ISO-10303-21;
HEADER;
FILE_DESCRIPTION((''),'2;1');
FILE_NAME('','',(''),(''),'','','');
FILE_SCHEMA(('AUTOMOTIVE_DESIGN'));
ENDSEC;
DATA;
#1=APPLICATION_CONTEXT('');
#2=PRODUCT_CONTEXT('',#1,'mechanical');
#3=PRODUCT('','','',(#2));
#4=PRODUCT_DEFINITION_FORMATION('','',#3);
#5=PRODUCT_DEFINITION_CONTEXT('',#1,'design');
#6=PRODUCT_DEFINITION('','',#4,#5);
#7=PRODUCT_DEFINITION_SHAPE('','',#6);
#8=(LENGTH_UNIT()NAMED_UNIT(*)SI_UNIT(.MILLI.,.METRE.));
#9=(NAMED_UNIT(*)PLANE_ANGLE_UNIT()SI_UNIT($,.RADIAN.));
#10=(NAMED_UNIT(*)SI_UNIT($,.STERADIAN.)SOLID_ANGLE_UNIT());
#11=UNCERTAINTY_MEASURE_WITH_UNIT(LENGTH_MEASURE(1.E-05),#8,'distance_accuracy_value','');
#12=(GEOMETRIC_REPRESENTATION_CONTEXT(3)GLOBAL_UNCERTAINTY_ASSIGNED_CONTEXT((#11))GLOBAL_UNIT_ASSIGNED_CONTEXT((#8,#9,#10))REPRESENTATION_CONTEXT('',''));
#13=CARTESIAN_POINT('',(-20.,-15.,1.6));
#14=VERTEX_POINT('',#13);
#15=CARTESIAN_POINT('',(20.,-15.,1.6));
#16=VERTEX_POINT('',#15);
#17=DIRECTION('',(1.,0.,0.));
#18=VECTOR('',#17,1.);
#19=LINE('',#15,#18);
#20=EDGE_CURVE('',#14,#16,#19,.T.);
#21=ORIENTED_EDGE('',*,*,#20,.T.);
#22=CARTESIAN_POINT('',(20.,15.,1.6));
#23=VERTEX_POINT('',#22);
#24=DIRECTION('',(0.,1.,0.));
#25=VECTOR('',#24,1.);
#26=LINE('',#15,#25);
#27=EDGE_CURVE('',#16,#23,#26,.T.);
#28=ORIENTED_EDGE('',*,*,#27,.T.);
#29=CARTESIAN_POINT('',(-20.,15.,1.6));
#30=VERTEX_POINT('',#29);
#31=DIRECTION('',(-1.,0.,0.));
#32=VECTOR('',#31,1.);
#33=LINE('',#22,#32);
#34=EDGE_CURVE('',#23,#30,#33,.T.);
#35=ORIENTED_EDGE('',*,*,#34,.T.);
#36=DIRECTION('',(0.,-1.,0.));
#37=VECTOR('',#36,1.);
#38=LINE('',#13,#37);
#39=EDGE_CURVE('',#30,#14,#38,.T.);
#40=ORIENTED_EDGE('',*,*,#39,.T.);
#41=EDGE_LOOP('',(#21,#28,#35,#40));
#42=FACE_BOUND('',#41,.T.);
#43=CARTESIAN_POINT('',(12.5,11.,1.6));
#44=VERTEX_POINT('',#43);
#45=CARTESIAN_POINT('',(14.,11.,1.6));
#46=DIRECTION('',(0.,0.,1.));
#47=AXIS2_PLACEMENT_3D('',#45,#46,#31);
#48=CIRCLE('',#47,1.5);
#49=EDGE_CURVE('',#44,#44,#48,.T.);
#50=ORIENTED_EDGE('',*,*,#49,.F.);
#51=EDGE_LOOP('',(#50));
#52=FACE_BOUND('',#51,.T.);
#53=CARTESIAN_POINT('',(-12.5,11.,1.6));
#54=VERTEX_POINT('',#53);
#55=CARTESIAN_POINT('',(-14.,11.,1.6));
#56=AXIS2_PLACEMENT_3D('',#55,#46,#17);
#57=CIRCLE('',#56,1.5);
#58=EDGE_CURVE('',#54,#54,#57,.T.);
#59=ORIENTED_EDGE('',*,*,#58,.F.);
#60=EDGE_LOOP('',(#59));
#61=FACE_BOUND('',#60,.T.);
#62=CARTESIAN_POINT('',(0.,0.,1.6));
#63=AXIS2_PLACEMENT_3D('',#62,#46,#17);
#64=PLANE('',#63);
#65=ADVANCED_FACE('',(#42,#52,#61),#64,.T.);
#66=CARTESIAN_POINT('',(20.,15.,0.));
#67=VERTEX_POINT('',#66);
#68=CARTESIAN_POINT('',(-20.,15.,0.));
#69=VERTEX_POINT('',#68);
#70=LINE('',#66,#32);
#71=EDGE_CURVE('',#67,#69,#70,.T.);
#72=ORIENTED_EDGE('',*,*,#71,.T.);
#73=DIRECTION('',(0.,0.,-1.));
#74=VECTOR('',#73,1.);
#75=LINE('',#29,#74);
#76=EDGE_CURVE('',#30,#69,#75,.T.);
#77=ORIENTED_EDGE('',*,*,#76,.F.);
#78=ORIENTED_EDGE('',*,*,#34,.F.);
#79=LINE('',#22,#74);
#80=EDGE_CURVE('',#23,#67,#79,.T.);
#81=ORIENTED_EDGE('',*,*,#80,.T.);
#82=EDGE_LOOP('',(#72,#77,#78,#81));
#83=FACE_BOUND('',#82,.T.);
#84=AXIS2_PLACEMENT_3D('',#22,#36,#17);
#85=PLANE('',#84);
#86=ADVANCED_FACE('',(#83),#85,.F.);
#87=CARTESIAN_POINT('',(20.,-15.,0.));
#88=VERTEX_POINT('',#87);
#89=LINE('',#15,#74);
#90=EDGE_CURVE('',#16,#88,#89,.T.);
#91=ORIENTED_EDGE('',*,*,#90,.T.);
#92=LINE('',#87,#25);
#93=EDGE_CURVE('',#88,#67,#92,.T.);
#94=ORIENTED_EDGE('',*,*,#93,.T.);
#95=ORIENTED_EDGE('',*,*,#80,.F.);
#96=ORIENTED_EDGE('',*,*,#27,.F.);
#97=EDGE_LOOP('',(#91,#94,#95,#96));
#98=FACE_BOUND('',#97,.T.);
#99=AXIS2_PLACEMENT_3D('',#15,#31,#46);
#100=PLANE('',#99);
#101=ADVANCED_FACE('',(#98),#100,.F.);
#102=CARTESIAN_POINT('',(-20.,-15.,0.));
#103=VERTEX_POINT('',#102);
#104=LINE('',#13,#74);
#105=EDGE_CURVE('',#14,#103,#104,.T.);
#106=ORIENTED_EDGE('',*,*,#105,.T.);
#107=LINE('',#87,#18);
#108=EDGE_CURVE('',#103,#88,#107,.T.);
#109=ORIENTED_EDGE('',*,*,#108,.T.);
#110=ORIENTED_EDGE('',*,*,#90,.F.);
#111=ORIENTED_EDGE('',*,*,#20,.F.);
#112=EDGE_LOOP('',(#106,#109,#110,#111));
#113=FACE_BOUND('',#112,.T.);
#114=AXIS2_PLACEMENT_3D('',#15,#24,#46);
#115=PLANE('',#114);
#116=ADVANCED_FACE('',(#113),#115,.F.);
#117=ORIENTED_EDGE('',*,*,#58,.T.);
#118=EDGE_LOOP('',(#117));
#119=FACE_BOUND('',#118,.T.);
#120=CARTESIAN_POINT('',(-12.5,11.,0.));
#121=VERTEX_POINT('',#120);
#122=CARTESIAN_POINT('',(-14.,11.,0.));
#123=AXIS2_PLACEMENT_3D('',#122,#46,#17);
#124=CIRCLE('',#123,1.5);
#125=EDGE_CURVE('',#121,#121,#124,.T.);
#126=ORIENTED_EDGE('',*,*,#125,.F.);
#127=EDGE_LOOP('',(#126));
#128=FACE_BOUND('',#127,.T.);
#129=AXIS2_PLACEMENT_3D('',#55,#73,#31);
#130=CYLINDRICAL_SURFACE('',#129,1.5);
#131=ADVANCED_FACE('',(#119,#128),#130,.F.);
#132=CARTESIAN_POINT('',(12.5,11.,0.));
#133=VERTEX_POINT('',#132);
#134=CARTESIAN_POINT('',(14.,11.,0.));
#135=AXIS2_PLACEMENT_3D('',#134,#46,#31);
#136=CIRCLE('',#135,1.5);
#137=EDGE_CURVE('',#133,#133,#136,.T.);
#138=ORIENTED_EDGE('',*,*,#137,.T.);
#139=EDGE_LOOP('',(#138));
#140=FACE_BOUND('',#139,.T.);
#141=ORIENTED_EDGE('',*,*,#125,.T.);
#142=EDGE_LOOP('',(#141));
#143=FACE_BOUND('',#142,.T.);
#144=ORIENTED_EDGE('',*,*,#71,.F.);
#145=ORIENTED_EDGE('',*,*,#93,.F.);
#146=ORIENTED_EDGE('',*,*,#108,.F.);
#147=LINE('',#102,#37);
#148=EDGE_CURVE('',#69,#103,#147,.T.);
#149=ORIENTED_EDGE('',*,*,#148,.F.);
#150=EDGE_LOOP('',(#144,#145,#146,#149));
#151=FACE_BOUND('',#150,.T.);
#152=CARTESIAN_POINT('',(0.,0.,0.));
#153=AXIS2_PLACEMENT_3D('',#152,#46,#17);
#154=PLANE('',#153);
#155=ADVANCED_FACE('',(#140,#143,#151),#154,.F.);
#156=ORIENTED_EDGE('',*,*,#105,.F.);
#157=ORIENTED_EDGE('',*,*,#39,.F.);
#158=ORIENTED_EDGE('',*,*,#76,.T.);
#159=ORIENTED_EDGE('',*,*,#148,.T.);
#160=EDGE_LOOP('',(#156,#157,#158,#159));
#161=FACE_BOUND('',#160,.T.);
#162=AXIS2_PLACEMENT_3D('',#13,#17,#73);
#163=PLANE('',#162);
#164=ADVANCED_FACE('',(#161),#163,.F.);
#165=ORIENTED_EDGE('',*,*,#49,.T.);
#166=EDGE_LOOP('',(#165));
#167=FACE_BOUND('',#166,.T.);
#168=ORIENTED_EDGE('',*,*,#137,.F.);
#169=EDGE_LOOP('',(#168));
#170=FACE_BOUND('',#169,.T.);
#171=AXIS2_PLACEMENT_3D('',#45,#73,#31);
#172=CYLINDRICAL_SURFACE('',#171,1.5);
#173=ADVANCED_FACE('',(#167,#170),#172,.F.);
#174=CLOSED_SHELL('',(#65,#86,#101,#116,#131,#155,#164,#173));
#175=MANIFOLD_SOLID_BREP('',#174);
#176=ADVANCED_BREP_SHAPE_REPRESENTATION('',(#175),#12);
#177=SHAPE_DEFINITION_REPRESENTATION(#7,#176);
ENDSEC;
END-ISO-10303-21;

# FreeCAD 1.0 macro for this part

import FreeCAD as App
import Part
import Sketcher
from FreeCAD import Vector
Q = App.Units.Quantity

doc = App.newDocument("Part")
params = doc.addObject("Spreadsheet::Sheet", "Params")
for row, (alias, value) in enumerate([
    ("sketch1_diameter", "3 mm"),
    ("sketch1_width", "40 mm"),
    ("sketch1_height", "30 mm"),
    ("pad1_length", "1.6 mm"),
], start=1):
    params.set(f"A{row}", alias)
    params.set(f"B{row}", "=" + value)
    params.setAlias(f"B{row}", alias)

body = doc.addObject("PartDesign::Body", "Body")

# Sketch on XY plane
sketch1 = doc.addObject("Sketcher::SketchObject", "Sketch")
body.addObject(sketch1)
sketch1.AttachmentSupport = (doc.XY_Plane, [""])
sketch1.MapMode = "FlatFace"
sketch1.addGeometry([
    Part.LineSegment(Vector(-20, 15, 0), Vector(-20, -15, 0)),  # 0
    Part.LineSegment(Vector(-20, -15, 0), Vector(20, -15, 0)),  # 1
    Part.LineSegment(Vector(20, -15, 0), Vector(20, 15, 0)),  # 2
    Part.LineSegment(Vector(20, 15, 0), Vector(-20, 15, 0)),  # 3
    Part.Circle(Vector(-14, 11, 0), Vector(0, 0, 1), 1.5),  # 4
    Part.Circle(Vector(14, 11, 0), Vector(0, 0, 1), 1.5),  # 5
], False)
sketch1.addConstraint([
    Sketcher.Constraint("Coincident", 0, 2, 1, 1),
    Sketcher.Constraint("Coincident", 1, 2, 2, 1),
    Sketcher.Constraint("Coincident", 2, 2, 3, 1),
    Sketcher.Constraint("Coincident", 3, 2, 0, 1),
    Sketcher.Constraint("Vertical", 0),
    Sketcher.Constraint("Horizontal", 1),
    Sketcher.Constraint("Vertical", 2),
    Sketcher.Constraint("Horizontal", 3),
    Sketcher.Constraint("Equal", 4, 5),
    Sketcher.Constraint("Symmetric", 0, 2, 2, 2, -1, 1),
    Sketcher.Constraint("Symmetric", 4, 3, 5, 3, -2),
    Sketcher.Constraint("Diameter", 4, Q("3 mm")),
    Sketcher.Constraint("DistanceX", 1, 1, 1, 2, Q("40 mm")),
    Sketcher.Constraint("DistanceY", 0, 2, 0, 1, Q("30 mm")),
    Sketcher.Constraint("DistanceX", 4, 3, -1, 1, Q("14 mm")),
    Sketcher.Constraint("DistanceY", -1, 1, 4, 3, Q("11 mm")),
])
sketch1.setExpression("Constraints[11]", "Params.sketch1_diameter")
sketch1.setExpression("Constraints[12]", "Params.sketch1_width")
sketch1.setExpression("Constraints[13]", "Params.sketch1_height")
pad1 = doc.addObject("PartDesign::Pad", "Pad")
body.addObject(pad1)
pad1.Profile = sketch1
pad1.setExpression("Length", "Params.pad1_length")

doc.recompute()
